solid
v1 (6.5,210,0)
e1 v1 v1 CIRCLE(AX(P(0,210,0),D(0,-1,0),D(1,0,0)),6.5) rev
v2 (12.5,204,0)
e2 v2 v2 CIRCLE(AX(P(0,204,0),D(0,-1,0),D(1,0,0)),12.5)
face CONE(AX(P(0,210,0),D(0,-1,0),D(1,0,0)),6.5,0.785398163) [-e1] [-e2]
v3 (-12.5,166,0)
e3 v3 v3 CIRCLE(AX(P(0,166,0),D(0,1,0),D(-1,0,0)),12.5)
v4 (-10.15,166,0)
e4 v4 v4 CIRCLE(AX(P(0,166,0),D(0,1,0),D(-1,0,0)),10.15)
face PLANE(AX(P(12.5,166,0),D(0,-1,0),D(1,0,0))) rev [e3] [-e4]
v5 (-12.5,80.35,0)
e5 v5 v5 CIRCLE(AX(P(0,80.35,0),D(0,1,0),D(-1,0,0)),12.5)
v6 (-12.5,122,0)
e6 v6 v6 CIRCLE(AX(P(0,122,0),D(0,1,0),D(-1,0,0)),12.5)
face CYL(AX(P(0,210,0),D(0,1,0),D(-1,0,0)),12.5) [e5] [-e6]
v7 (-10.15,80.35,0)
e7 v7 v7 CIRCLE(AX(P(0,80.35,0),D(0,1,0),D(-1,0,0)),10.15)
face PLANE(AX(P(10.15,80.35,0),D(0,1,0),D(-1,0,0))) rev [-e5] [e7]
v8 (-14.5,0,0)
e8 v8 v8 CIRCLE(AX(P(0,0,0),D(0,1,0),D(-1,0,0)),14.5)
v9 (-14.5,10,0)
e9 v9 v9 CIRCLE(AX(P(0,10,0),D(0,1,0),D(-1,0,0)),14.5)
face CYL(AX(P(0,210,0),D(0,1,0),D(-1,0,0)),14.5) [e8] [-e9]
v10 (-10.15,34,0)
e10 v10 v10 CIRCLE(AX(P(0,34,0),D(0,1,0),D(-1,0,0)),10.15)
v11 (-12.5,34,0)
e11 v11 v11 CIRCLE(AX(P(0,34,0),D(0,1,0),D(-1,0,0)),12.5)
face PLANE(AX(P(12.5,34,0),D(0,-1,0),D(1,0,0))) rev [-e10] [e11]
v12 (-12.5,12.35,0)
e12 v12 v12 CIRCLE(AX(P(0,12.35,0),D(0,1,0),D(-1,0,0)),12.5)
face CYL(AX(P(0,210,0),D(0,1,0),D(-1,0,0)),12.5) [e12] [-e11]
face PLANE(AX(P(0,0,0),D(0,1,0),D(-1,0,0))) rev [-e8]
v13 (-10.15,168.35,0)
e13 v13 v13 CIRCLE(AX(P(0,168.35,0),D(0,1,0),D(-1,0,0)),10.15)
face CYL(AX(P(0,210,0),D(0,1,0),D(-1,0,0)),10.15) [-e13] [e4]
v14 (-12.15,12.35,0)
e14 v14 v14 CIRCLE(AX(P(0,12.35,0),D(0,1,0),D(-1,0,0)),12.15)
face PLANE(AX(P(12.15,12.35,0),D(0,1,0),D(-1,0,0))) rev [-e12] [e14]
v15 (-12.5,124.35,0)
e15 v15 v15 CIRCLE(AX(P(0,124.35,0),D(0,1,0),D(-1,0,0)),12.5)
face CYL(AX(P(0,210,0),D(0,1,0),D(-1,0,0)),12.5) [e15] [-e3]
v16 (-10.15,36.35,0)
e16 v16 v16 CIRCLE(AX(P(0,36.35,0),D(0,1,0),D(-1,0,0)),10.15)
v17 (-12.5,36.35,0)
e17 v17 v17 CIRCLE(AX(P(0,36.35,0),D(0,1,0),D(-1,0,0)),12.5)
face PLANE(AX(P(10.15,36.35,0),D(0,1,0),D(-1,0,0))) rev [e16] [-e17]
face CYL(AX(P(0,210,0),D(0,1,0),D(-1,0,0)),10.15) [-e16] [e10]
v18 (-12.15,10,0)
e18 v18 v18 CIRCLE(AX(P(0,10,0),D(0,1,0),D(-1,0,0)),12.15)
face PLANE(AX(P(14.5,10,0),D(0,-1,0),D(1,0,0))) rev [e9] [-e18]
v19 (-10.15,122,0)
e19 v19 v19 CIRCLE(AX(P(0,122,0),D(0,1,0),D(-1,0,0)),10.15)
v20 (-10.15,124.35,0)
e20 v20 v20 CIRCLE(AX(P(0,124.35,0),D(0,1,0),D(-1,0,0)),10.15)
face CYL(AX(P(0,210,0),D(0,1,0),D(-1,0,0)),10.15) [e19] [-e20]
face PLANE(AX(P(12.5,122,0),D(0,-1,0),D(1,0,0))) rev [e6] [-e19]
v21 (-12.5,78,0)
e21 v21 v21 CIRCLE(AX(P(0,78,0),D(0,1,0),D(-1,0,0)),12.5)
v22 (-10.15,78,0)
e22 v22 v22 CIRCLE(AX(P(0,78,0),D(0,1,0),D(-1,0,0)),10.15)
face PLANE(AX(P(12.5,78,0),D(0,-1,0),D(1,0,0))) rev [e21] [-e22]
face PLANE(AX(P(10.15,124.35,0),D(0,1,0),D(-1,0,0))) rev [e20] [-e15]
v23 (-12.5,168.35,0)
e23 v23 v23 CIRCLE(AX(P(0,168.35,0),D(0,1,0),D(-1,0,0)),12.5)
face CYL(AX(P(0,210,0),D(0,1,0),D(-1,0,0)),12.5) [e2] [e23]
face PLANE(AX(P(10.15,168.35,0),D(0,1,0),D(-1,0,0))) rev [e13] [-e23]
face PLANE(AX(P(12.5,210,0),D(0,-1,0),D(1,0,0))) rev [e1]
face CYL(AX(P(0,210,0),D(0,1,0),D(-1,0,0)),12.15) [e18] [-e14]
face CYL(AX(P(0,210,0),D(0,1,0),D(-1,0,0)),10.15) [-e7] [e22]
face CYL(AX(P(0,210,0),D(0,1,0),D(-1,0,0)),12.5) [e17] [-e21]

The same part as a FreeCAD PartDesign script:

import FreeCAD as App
import Part
import Sketcher


def edges_at(feature, points):
    """Names of the edges that pass closest to the given points."""
    edges = feature.Shape.Edges
    near = lambda p: min(range(len(edges)), key=lambda i: edges[i].distToShape(Part.Vertex(*p))[0])
    return sorted({f"Edge{near(p) + 1}" for p in points})

doc = App.newDocument("Part")
body = doc.addObject("PartDesign::Body", "Body")

# Sketch on XY plane
sketch1 = doc.addObject("Sketcher::SketchObject", "Sketch")
body.addObject(sketch1)
sketch1.AttachmentSupport = (doc.XY_Plane, [""])
sketch1.MapMode = "FlatFace"
sketch1.addGeometry([
    Part.LineSegment(App.Vector(0, 0, 0), App.Vector(14.5, 0, 0)),  # 0
    Part.LineSegment(App.Vector(14.5, 0, 0), App.Vector(14.5, 10, 0)),  # 1
    Part.LineSegment(App.Vector(14.5, 10, 0), App.Vector(12.15, 10, 0)),  # 2
    Part.LineSegment(App.Vector(12.15, 10, 0), App.Vector(12.15, 12.35, 0)),  # 3
    Part.LineSegment(App.Vector(12.15, 12.35, 0), App.Vector(12.5, 12.35, 0)),  # 4
    Part.LineSegment(App.Vector(12.5, 12.35, 0), App.Vector(12.5, 34, 0)),  # 5
    Part.LineSegment(App.Vector(12.5, 34, 0), App.Vector(10.15, 34, 0)),  # 6
    Part.LineSegment(App.Vector(10.15, 34, 0), App.Vector(10.15, 36.35, 0)),  # 7
    Part.LineSegment(App.Vector(10.15, 36.35, 0), App.Vector(12.5, 36.35, 0)),  # 8
    Part.LineSegment(App.Vector(12.5, 36.35, 0), App.Vector(12.5, 78, 0)),  # 9
    Part.LineSegment(App.Vector(12.5, 78, 0), App.Vector(10.15, 78, 0)),  # 10
    Part.LineSegment(App.Vector(10.15, 78, 0), App.Vector(10.15, 80.35, 0)),  # 11
    Part.LineSegment(App.Vector(10.15, 80.35, 0), App.Vector(12.5, 80.35, 0)),  # 12
    Part.LineSegment(App.Vector(12.5, 80.35, 0), App.Vector(12.5, 122, 0)),  # 13
    Part.LineSegment(App.Vector(12.5, 122, 0), App.Vector(10.15, 122, 0)),  # 14
    Part.LineSegment(App.Vector(10.15, 122, 0), App.Vector(10.15, 124.35, 0)),  # 15
    Part.LineSegment(App.Vector(10.15, 124.35, 0), App.Vector(12.5, 124.35, 0)),  # 16
    Part.LineSegment(App.Vector(12.5, 124.35, 0), App.Vector(12.5, 166, 0)),  # 17
    Part.LineSegment(App.Vector(12.5, 166, 0), App.Vector(10.15, 166, 0)),  # 18
    Part.LineSegment(App.Vector(10.15, 166, 0), App.Vector(10.15, 168.35, 0)),  # 19
    Part.LineSegment(App.Vector(10.15, 168.35, 0), App.Vector(12.5, 168.35, 0)),  # 20
    Part.LineSegment(App.Vector(12.5, 168.35, 0), App.Vector(12.5, 210, 0)),  # 21
    Part.LineSegment(App.Vector(12.5, 210, 0), App.Vector(0, 210, 0)),  # 22
    Part.LineSegment(App.Vector(0, 210, 0), App.Vector(0, 0, 0)),  # 23
], False)
sketch1.addConstraint([
    Sketcher.Constraint("Coincident", 0, 2, 1, 1),
    Sketcher.Constraint("Coincident", 1, 2, 2, 1),
    Sketcher.Constraint("Coincident", 2, 2, 3, 1),
    Sketcher.Constraint("Coincident", 3, 2, 4, 1),
    Sketcher.Constraint("Coincident", 4, 2, 5, 1),
    Sketcher.Constraint("Coincident", 5, 2, 6, 1),
    Sketcher.Constraint("Coincident", 6, 2, 7, 1),
    Sketcher.Constraint("Coincident", 7, 2, 8, 1),
    Sketcher.Constraint("Coincident", 8, 2, 9, 1),
    Sketcher.Constraint("Coincident", 9, 2, 10, 1),
    Sketcher.Constraint("Coincident", 10, 2, 11, 1),
    Sketcher.Constraint("Coincident", 11, 2, 12, 1),
    Sketcher.Constraint("Coincident", 12, 2, 13, 1),
    Sketcher.Constraint("Coincident", 13, 2, 14, 1),
    Sketcher.Constraint("Coincident", 14, 2, 15, 1),
    Sketcher.Constraint("Coincident", 15, 2, 16, 1),
    Sketcher.Constraint("Coincident", 16, 2, 17, 1),
    Sketcher.Constraint("Coincident", 17, 2, 18, 1),
    Sketcher.Constraint("Coincident", 18, 2, 19, 1),
    Sketcher.Constraint("Coincident", 19, 2, 20, 1),
    Sketcher.Constraint("Coincident", 20, 2, 21, 1),
    Sketcher.Constraint("Coincident", 21, 2, 22, 1),
    Sketcher.Constraint("Coincident", 22, 2, 23, 1),
    Sketcher.Constraint("Coincident", 23, 2, 0, 1),
    Sketcher.Constraint("Horizontal", 0),
    Sketcher.Constraint("Vertical", 1),
    Sketcher.Constraint("Horizontal", 2),
    Sketcher.Constraint("Vertical", 3),
    Sketcher.Constraint("Horizontal", 4),
    Sketcher.Constraint("Vertical", 5),
    Sketcher.Constraint("Horizontal", 6),
    Sketcher.Constraint("Vertical", 7),
    Sketcher.Constraint("Horizontal", 8),
    Sketcher.Constraint("Vertical", 9),
    Sketcher.Constraint("Horizontal", 10),
    Sketcher.Constraint("Vertical", 11),
    Sketcher.Constraint("Horizontal", 12),
    Sketcher.Constraint("Vertical", 13),
    Sketcher.Constraint("Horizontal", 14),
    Sketcher.Constraint("Vertical", 15),
    Sketcher.Constraint("Horizontal", 16),
    Sketcher.Constraint("Vertical", 17),
    Sketcher.Constraint("Horizontal", 18),
    Sketcher.Constraint("Vertical", 19),
    Sketcher.Constraint("Horizontal", 20),
    Sketcher.Constraint("Vertical", 21),
    Sketcher.Constraint("Horizontal", 22),
    Sketcher.Constraint("Vertical", 23),
    Sketcher.Constraint("Coincident", 23, 2, -1, 1),
    Sketcher.Constraint("Vertical", 5, 2, 8, 2),
    Sketcher.Constraint("Vertical", 7, 2, 10, 2),
    Sketcher.Constraint("Vertical", 9, 2, 12, 2),
    Sketcher.Constraint("Vertical", 11, 2, 14, 2),
    Sketcher.Constraint("Vertical", 13, 2, 16, 2),
    Sketcher.Constraint("Vertical", 15, 2, 18, 2),
    Sketcher.Constraint("Vertical", 17, 2, 20, 2),
    Sketcher.Constraint("Equal", 2, 6),
    Sketcher.Constraint("Equal", 20, 3),
    Sketcher.Constraint("Equal", 3, 7),
    Sketcher.Constraint("Equal", 7, 11),
    Sketcher.Constraint("Equal", 9, 13),
    Sketcher.Constraint("Equal", 11, 15),
    Sketcher.Constraint("Equal", 13, 17),
    Sketcher.Constraint("Equal", 15, 19),
    Sketcher.Constraint("Equal", 17, 21),
    Sketcher.Constraint("DistanceY", 1, 1, 1, 2, 10.0),
    Sketcher.Constraint("DistanceY", 23, 2, 23, 1, 210.0),
    Sketcher.Constraint("DistanceX", 0, 1, 0, 2, 14.5),
    Sketcher.Constraint("DistanceX", 22, 2, 22, 1, 12.5),
    Sketcher.Constraint("DistanceY", -1, 1, 5, 2, 34.0),
    Sketcher.Constraint("DistanceX", 2, 2, 2, 1, 2.35),
])
revolution = doc.addObject("PartDesign::Revolution", "Revolution")
body.addObject(revolution)
revolution.Profile = sketch1
revolution.ReferenceAxis = (sketch1, ["V_Axis"])
revolution.Angle = 360
doc.recompute()

chamfer = doc.addObject("PartDesign::Chamfer", "Chamfer")
body.addObject(chamfer)
chamfer.Base = (revolution, edges_at(revolution, [(12.5, 210, 0)]))
chamfer.Size = 6

doc.recompute()
